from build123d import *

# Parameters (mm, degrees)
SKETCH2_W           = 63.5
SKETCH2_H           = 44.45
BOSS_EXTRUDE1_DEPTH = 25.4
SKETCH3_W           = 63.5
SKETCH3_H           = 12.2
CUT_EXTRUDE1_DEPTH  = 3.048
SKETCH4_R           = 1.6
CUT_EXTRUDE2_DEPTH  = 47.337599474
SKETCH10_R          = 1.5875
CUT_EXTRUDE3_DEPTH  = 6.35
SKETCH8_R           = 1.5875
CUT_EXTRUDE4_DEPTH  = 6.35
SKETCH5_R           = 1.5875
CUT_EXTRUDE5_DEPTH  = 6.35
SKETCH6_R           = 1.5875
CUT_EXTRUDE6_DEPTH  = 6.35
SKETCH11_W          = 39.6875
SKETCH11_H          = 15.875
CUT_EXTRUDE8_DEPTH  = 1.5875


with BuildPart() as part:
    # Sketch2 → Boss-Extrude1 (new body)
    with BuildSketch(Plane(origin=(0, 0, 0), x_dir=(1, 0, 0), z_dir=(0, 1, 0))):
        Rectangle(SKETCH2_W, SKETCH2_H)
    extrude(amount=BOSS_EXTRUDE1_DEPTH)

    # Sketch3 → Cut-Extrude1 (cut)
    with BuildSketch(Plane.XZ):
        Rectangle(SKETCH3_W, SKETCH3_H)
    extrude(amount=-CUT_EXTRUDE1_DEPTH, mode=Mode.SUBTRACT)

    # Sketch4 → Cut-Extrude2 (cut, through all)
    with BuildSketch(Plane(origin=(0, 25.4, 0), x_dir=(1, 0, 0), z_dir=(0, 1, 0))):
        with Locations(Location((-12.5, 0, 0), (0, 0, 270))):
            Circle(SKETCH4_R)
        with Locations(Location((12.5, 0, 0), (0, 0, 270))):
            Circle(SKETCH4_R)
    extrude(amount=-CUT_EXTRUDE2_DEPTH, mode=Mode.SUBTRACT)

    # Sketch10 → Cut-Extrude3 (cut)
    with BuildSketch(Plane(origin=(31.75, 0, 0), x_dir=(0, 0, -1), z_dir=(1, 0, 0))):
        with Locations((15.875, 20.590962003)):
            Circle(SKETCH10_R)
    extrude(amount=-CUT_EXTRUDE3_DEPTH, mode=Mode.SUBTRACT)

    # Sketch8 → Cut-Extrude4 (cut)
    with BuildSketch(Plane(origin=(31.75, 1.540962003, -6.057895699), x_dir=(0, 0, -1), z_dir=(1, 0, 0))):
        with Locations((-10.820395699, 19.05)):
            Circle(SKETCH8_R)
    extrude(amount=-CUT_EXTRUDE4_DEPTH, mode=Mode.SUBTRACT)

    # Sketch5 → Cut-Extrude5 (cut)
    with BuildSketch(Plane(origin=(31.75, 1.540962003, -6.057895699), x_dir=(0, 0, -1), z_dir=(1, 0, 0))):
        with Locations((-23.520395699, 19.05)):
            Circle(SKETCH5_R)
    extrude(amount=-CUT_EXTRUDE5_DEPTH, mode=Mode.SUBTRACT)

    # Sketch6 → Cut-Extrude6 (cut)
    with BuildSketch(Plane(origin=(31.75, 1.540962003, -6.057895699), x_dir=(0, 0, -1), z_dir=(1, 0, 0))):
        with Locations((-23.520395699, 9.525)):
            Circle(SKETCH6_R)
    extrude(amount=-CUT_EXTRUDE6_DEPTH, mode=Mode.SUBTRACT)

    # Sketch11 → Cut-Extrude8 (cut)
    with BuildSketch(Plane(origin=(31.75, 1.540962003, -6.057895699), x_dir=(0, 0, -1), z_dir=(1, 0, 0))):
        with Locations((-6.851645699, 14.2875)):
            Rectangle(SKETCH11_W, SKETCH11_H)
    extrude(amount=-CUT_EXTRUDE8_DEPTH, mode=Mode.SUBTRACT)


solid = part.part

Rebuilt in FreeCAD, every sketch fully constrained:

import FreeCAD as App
import Part
import Sketcher
Q = App.Units.Quantity

doc = App.newDocument("Part")
body = doc.addObject("PartDesign::Body", "Body")

# Sketch on XZ plane
sketch1 = body.newObject("Sketcher::SketchObject", "Sketch")
sketch1.AttachmentSupport = (doc.getObject("XZ_Plane"), [""])
sketch1.MapMode = "FlatFace"
sketch1.addGeometry(Part.LineSegment(App.Vector(-32, -22, 0), App.Vector(-32, 22, 0)), False)
sketch1.addGeometry(Part.LineSegment(App.Vector(-32, 22, 0), App.Vector(32, 22, 0)), False)
sketch1.addGeometry(Part.LineSegment(App.Vector(32, 22, 0), App.Vector(32, -22, 0)), False)
sketch1.addGeometry(Part.LineSegment(App.Vector(32, -22, 0), App.Vector(-32, -22, 0)), False)
sketch1.addConstraint(Sketcher.Constraint("Coincident", 0, 2, 1, 1))
sketch1.addConstraint(Sketcher.Constraint("Coincident", 1, 2, 2, 1))
sketch1.addConstraint(Sketcher.Constraint("Coincident", 2, 2, 3, 1))
sketch1.addConstraint(Sketcher.Constraint("Coincident", 3, 2, 0, 1))
sketch1.addConstraint(Sketcher.Constraint("Vertical", 0))
sketch1.addConstraint(Sketcher.Constraint("Horizontal", 1))
sketch1.addConstraint(Sketcher.Constraint("Vertical", 2))
sketch1.addConstraint(Sketcher.Constraint("Horizontal", 3))
sketch1.addConstraint(Sketcher.Constraint("Symmetric", 0, 2, 2, 2, -1, 1))
sketch1.addConstraint(Sketcher.Constraint("DistanceX", 1, 1, 1, 2, Q("2.5 in")))
sketch1.addConstraint(Sketcher.Constraint("DistanceY", 0, 1, 0, 2, Q("1.75 in")))
pad1 = body.newObject("PartDesign::Pad", "Pad")
pad1.Profile = sketch1
pad1.Length = Q("1 in")
pad1.Reversed = True

# Sketch on XZ plane
sketch2 = body.newObject("Sketcher::SketchObject", "Sketch001")
sketch2.AttachmentSupport = (doc.getObject("XZ_Plane"), [""])
sketch2.MapMode = "FlatFace"
sketch2.addGeometry(Part.LineSegment(App.Vector(-32, 6, 0), App.Vector(-32, -6, 0)), False)
sketch2.addGeometry(Part.LineSegment(App.Vector(-32, -6, 0), App.Vector(32, -6, 0)), False)
sketch2.addGeometry(Part.LineSegment(App.Vector(32, -6, 0), App.Vector(32, 6, 0)), False)
sketch2.addGeometry(Part.LineSegment(App.Vector(32, 6, 0), App.Vector(-32, 6, 0)), False)
sketch2.addConstraint(Sketcher.Constraint("Coincident", 0, 2, 1, 1))
sketch2.addConstraint(Sketcher.Constraint("Coincident", 1, 2, 2, 1))
sketch2.addConstraint(Sketcher.Constraint("Coincident", 2, 2, 3, 1))
sketch2.addConstraint(Sketcher.Constraint("Coincident", 3, 2, 0, 1))
sketch2.addConstraint(Sketcher.Constraint("Vertical", 0))
sketch2.addConstraint(Sketcher.Constraint("Horizontal", 1))
sketch2.addConstraint(Sketcher.Constraint("Vertical", 2))
sketch2.addConstraint(Sketcher.Constraint("Horizontal", 3))
sketch2.addConstraint(Sketcher.Constraint("Symmetric", 0, 2, 2, 2, -1, 1))
sketch2.addConstraint(Sketcher.Constraint("DistanceX", 1, 1, 1, 2, Q("2.5 in")))
sketch2.addConstraint(Sketcher.Constraint("DistanceY", 0, 2, 0, 1, 12.2))
pocket1 = body.newObject("PartDesign::Pocket", "Pocket")
pocket1.Profile = sketch2
pocket1.Length = Q("0.12 in")

# Sketch on XZ plane
sketch3 = body.newObject("Sketcher::SketchObject", "Sketch002")
sketch3.AttachmentSupport = (doc.getObject("XZ_Plane"), [""])
sketch3.MapMode = "FlatFace"
sketch3.AttachmentOffset = App.Placement(App.Vector(0, 0, -1 * 25.4), App.Rotation())
sketch3.addGeometry(Part.Circle(App.Vector(-12.5, 0, 0), App.Vector(0, 0, 1), 1.6), False)
sketch3.addGeometry(Part.Circle(App.Vector(12.5, 0, 0), App.Vector(0, 0, 1), 1.6), False)
sketch3.addConstraint(Sketcher.Constraint("Equal", 0, 1))
sketch3.addConstraint(Sketcher.Constraint("Symmetric", 0, 3, 1, 3, -1, 1))
sketch3.addConstraint(Sketcher.Constraint("PointOnObject", 0, 3, -1))
sketch3.addConstraint(Sketcher.Constraint("Diameter", 0, 3.2))
sketch3.addConstraint(Sketcher.Constraint("DistanceX", 0, 3, -1, 1, 12.5))
pocket2 = body.newObject("PartDesign::Pocket", "Pocket001")
pocket2.Profile = sketch3
pocket2.Type = "ThroughAll"
pocket2.Reversed = True

# Sketch on YZ plane
sketch4 = body.newObject("Sketcher::SketchObject", "Sketch003")
sketch4.AttachmentSupport = (doc.getObject("YZ_Plane"), [""])
sketch4.MapMode = "FlatFace"
sketch4.AttachmentOffset = App.Placement(App.Vector(0, 0, 1.25 * 25.4), App.Rotation())
sketch4.addGeometry(Part.Circle(App.Vector(20.6, -15.9, 0), App.Vector(0, 0, 1), 1.6), False)
sketch4.addConstraint(Sketcher.Constraint("Diameter", 0, Q("0.125 in")))
sketch4.addConstraint(Sketcher.Constraint("DistanceY", 0, 3, -1, 1, Q("0.625 in")))
sketch4.addConstraint(Sketcher.Constraint("DistanceX", -1, 1, 0, 3, 20.590962))
pocket3 = body.newObject("PartDesign::Pocket", "Pocket002")
pocket3.Profile = sketch4
pocket3.Length = Q("0.25 in")

# Sketch on YZ plane
sketch5 = body.newObject("Sketcher::SketchObject", "Sketch004")
sketch5.AttachmentSupport = (doc.getObject("YZ_Plane"), [""])
sketch5.MapMode = "FlatFace"
sketch5.AttachmentOffset = App.Placement(App.Vector(0, 0, 1.25 * 25.4), App.Rotation())
sketch5.addGeometry(Part.Circle(App.Vector(20.6, 4.8, 0), App.Vector(0, 0, 1), 1.6), False)
sketch5.addConstraint(Sketcher.Constraint("Diameter", 0, Q("0.125 in")))
sketch5.addConstraint(Sketcher.Constraint("DistanceY", -1, 1, 0, 3, Q("0.1875 in")))
sketch5.addConstraint(Sketcher.Constraint("DistanceX", -1, 1, 0, 3, 20.590962))
pocket4 = body.newObject("PartDesign::Pocket", "Pocket003")
pocket4.Profile = sketch5
pocket4.Length = Q("0.25 in")

# Sketch on YZ plane
sketch6 = body.newObject("Sketcher::SketchObject", "Sketch005")
sketch6.AttachmentSupport = (doc.getObject("YZ_Plane"), [""])
sketch6.MapMode = "FlatFace"
sketch6.AttachmentOffset = App.Placement(App.Vector(0, 0, 1.25 * 25.4), App.Rotation())
sketch6.addGeometry(Part.Circle(App.Vector(20.6, 17.5, 0), App.Vector(0, 0, 1), 1.6), False)
sketch6.addConstraint(Sketcher.Constraint("Diameter", 0, Q("0.125 in")))
sketch6.addConstraint(Sketcher.Constraint("DistanceY", -1, 1, 0, 3, Q("0.6875 in")))
sketch6.addConstraint(Sketcher.Constraint("DistanceX", -1, 1, 0, 3, 20.590962))
pocket5 = body.newObject("PartDesign::Pocket", "Pocket004")
pocket5.Profile = sketch6
pocket5.Length = Q("0.25 in")

# Sketch on YZ plane
sketch7 = body.newObject("Sketcher::SketchObject", "Sketch006")
sketch7.AttachmentSupport = (doc.getObject("YZ_Plane"), [""])
sketch7.MapMode = "FlatFace"
sketch7.AttachmentOffset = App.Placement(App.Vector(0, 0, 1.25 * 25.4), App.Rotation())
sketch7.addGeometry(Part.Circle(App.Vector(11.1, 17.5, 0), App.Vector(0, 0, 1), 1.6), False)
sketch7.addConstraint(Sketcher.Constraint("Diameter", 0, Q("0.125 in")))
sketch7.addConstraint(Sketcher.Constraint("DistanceY", -1, 1, 0, 3, Q("0.6875 in")))
sketch7.addConstraint(Sketcher.Constraint("DistanceX", -1, 1, 0, 3, 11.065962))
pocket6 = body.newObject("PartDesign::Pocket", "Pocket005")
pocket6.Profile = sketch7
pocket6.Length = Q("0.25 in")

# Sketch on YZ plane
sketch8 = body.newObject("Sketcher::SketchObject", "Sketch007")
sketch8.AttachmentSupport = (doc.getObject("YZ_Plane"), [""])
sketch8.MapMode = "FlatFace"
sketch8.AttachmentOffset = App.Placement(App.Vector(0, 0, 1.25 * 25.4), App.Rotation())
sketch8.addGeometry(Part.LineSegment(App.Vector(24, 21, 0), App.Vector(8, 21, 0)), False)
sketch8.addGeometry(Part.LineSegment(App.Vector(8, 21, 0), App.Vector(8, -19, 0)), False)
sketch8.addGeometry(Part.LineSegment(App.Vector(8, -19, 0), App.Vector(24, -19, 0)), False)
sketch8.addGeometry(Part.LineSegment(App.Vector(24, -19, 0), App.Vector(24, 21, 0)), False)
sketch8.addConstraint(Sketcher.Constraint("Coincident", 0, 2, 1, 1))
sketch8.addConstraint(Sketcher.Constraint("Coincident", 1, 2, 2, 1))
sketch8.addConstraint(Sketcher.Constraint("Coincident", 2, 2, 3, 1))
sketch8.addConstraint(Sketcher.Constraint("Coincident", 3, 2, 0, 1))
sketch8.addConstraint(Sketcher.Constraint("Horizontal", 0))
sketch8.addConstraint(Sketcher.Constraint("Vertical", 1))
sketch8.addConstraint(Sketcher.Constraint("Horizontal", 2))
sketch8.addConstraint(Sketcher.Constraint("Vertical", 3))
sketch8.addConstraint(Sketcher.Constraint("DistanceX", 0, 2, 0, 1, Q("0.625 in")))
sketch8.addConstraint(Sketcher.Constraint("DistanceY", 1, 2, 1, 1, Q("1.5625 in")))
sketch8.addConstraint(Sketcher.Constraint("DistanceY", 1, 2, -1, 1, Q("0.75 in")))
sketch8.addConstraint(Sketcher.Constraint("DistanceX", -1, 1, 0, 2, 7.890962))
pocket7 = body.newObject("PartDesign::Pocket", "Pocket006")
pocket7.Profile = sketch8
pocket7.Length = Q("0.0625 in")

doc.recompute()
